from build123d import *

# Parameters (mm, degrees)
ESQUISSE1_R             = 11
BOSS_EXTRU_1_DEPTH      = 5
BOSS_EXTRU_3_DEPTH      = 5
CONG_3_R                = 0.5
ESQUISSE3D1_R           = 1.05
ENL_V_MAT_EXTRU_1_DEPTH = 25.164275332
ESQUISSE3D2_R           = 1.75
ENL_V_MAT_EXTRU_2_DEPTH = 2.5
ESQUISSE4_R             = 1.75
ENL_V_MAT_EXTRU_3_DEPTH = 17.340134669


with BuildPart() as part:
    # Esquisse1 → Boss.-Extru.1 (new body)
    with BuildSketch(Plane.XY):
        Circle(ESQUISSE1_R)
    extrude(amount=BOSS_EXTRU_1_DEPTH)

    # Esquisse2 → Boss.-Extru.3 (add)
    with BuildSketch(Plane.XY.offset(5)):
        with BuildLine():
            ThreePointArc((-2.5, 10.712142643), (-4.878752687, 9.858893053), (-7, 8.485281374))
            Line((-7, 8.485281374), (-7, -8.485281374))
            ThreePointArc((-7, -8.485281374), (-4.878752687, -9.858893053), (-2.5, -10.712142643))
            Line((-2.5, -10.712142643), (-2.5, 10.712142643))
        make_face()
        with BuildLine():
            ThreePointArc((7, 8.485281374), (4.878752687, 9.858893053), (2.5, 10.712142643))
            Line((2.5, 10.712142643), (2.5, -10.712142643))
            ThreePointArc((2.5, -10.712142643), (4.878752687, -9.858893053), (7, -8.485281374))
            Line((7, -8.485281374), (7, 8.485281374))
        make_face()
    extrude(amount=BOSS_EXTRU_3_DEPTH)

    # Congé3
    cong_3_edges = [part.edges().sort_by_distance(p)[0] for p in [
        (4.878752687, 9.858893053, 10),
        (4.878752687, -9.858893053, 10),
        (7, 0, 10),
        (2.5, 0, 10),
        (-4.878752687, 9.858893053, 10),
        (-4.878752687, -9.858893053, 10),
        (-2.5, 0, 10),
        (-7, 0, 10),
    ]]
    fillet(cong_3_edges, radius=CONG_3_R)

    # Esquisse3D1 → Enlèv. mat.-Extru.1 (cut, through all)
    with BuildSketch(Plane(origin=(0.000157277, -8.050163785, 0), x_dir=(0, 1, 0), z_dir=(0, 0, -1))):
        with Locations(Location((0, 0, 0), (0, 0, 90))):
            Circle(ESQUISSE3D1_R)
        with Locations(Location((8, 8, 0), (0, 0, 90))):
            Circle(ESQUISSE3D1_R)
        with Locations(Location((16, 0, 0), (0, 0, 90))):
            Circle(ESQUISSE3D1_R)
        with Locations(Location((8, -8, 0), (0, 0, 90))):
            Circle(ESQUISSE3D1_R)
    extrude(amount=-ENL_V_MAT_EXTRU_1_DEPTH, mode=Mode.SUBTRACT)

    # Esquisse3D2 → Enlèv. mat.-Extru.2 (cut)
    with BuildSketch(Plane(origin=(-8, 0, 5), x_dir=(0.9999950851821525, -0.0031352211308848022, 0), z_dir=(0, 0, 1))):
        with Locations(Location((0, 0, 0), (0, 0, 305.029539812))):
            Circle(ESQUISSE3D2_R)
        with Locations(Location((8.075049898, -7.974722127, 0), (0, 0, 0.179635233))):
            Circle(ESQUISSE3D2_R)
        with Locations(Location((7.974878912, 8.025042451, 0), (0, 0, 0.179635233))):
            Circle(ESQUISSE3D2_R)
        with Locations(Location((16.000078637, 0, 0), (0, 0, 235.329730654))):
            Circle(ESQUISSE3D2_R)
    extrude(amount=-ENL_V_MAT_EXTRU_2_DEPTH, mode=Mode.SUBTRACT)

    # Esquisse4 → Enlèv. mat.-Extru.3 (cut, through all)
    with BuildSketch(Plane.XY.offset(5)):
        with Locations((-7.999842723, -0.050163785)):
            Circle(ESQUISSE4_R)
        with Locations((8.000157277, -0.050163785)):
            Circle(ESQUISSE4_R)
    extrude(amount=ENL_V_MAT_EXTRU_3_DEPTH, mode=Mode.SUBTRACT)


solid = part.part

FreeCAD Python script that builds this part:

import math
import FreeCAD as App
import Part
import Sketcher

V = App.Vector


def edges_at(feature, points):
    """Names of the edges that pass closest to the given points."""
    edges = feature.Shape.Edges
    near = lambda p: min(range(len(edges)), key=lambda i: edges[i].distToShape(Part.Vertex(*p))[0])
    return sorted({f"Edge{near(p) + 1}" for p in points})

doc = App.newDocument("Part")
body = doc.addObject("PartDesign::Body", "Body")

sketch1 = doc.addObject("Sketcher::SketchObject", "Sketch")
body.addObject(sketch1)
sketch1.AttachmentSupport = (doc.XY_Plane, [""])
sketch1.MapMode = "FlatFace"
sketch1.addGeometry(Part.Circle(V(0, 0, 0), V(0, 0, 1), 11), False)
sketch1.addConstraint(Sketcher.Constraint("Coincident", 0, 3, -1, 1))
sketch1.addConstraint(Sketcher.Constraint("Diameter", 0, 22.0))
pad1 = doc.addObject("PartDesign::Pad", "Pad")
body.addObject(pad1)
pad1.Profile = sketch1
pad1.Length = 5

sketch2 = doc.addObject("Sketcher::SketchObject", "Sketch001")
body.addObject(sketch2)
sketch2.AttachmentSupport = (doc.XY_Plane, [""])
sketch2.MapMode = "FlatFace"
sketch2.AttachmentOffset = App.Placement(V(0, 0, 5), App.Rotation())
sketch2.addGeometry(Part.ArcOfCircle(Part.Circle(V(0, 0, 0), V(0, 0, 1), 11), math.radians(103), math.radians(130)), False)
sketch2.addGeometry(Part.LineSegment(V(-7, 8, 0), V(-7, -8, 0)), False)
sketch2.addGeometry(Part.ArcOfCircle(Part.Circle(V(0, 0, 0), V(0, 0, 1), 11), math.radians(-130), math.radians(-103)), False)
sketch2.addGeometry(Part.LineSegment(V(-2, -11, 0), V(-2, 11, 0)), False)
sketch2.addGeometry(Part.ArcOfCircle(Part.Circle(V(0, 0, 0), V(0, 0, 1), 11), math.radians(50), math.radians(77)), False)
sketch2.addGeometry(Part.LineSegment(V(2, 11, 0), V(2, -11, 0)), False)
sketch2.addGeometry(Part.ArcOfCircle(Part.Circle(V(0, 0, 0), V(0, 0, 1), 11), math.radians(-77), math.radians(-50)), False)
sketch2.addGeometry(Part.LineSegment(V(7, -8, 0), V(7, 8, 0)), False)
sketch2.addConstraint(Sketcher.Constraint("Coincident", 0, 2, 1, 1))
sketch2.addConstraint(Sketcher.Constraint("Coincident", 1, 2, 2, 1))
sketch2.addConstraint(Sketcher.Constraint("Coincident", 2, 2, 3, 1))
sketch2.addConstraint(Sketcher.Constraint("Coincident", 3, 2, 0, 1))
sketch2.addConstraint(Sketcher.Constraint("Coincident", 4, 2, 5, 1))
sketch2.addConstraint(Sketcher.Constraint("Coincident", 5, 2, 6, 1))
sketch2.addConstraint(Sketcher.Constraint("Coincident", 6, 2, 7, 1))
sketch2.addConstraint(Sketcher.Constraint("Coincident", 7, 2, 4, 1))
sketch2.addConstraint(Sketcher.Constraint("Vertical", 1))
sketch2.addConstraint(Sketcher.Constraint("Vertical", 3))
sketch2.addConstraint(Sketcher.Constraint("Vertical", 5))
sketch2.addConstraint(Sketcher.Constraint("Vertical", 7))
sketch2.addConstraint(Sketcher.Constraint("Coincident", 0, 3, -1, 1))
sketch2.addConstraint(Sketcher.Constraint("Coincident", 2, 3, -1, 1))
sketch2.addConstraint(Sketcher.Constraint("Coincident", 4, 3, -1, 1))
sketch2.addConstraint(Sketcher.Constraint("Coincident", 6, 3, -1, 1))
sketch2.addConstraint(Sketcher.Constraint("Equal", 0, 2))
sketch2.addConstraint(Sketcher.Constraint("Equal", 2, 4))
sketch2.addConstraint(Sketcher.Constraint("Equal", 4, 6))
sketch2.addConstraint(Sketcher.Constraint("Horizontal", 3, 2, 4, 2))
sketch2.addConstraint(Sketcher.Constraint("Horizontal", 1, 2, 6, 2))
sketch2.addConstraint(Sketcher.Constraint("Radius", 0, 11.0))
sketch2.addConstraint(Sketcher.Constraint("DistanceX", 0, 2, -1, 1, 7.0))
sketch2.addConstraint(Sketcher.Constraint("DistanceX", 3, 2, 4, 2, 5.0))
pad2 = doc.addObject("PartDesign::Pad", "Pad001")
body.addObject(pad2)
pad2.Profile = sketch2
pad2.Length = 5
doc.recompute()

fillet = doc.addObject("PartDesign::Fillet", "Fillet")
body.addObject(fillet)
fillet.Base = (pad2, edges_at(pad2, [
    (4.879, 9.859, 10),
    (4.879, -9.859, 10),
    (7, 0, 10),
    (2.5, 0, 10),
    (-4.879, 9.859, 10),
    (-4.879, -9.859, 10),
    (-2.5, 0, 10),
    (-7, 0, 10),
]))
fillet.Radius = 0.5

sketch3 = doc.addObject("Sketcher::SketchObject", "Sketch002")
body.addObject(sketch3)
sketch3.AttachmentSupport = (doc.XY_Plane, [""])
sketch3.MapMode = "FlatFace"
sketch3.addGeometry(Part.Circle(V(0, -8.1, 0), V(0, 0, 1), 1.1), False)
sketch3.addGeometry(Part.Circle(V(8, -0.1, 0), V(0, 0, 1), 1.1), False)
sketch3.addGeometry(Part.Circle(V(0, 7.9, 0), V(0, 0, 1), 1.1), False)
sketch3.addGeometry(Part.Circle(V(-8, -0.1, 0), V(0, 0, 1), 1.1), False)
sketch3.addConstraint(Sketcher.Constraint("Equal", 0, 1))
sketch3.addConstraint(Sketcher.Constraint("Equal", 1, 2))
sketch3.addConstraint(Sketcher.Constraint("Equal", 2, 3))
sketch3.addConstraint(Sketcher.Constraint("Horizontal", 1, 3, 3, 3))
sketch3.addConstraint(Sketcher.Constraint("Vertical", 0, 3, 2, 3))
sketch3.addConstraint(Sketcher.Constraint("Diameter", 0, 2.1))
sketch3.addConstraint(Sketcher.Constraint("DistanceX", 0, 3, 1, 3, 8.0))
sketch3.addConstraint(Sketcher.Constraint("DistanceY", 0, 3, 1, 3, 8.0))
sketch3.addConstraint(Sketcher.Constraint("DistanceY", 1, 3, 2, 3, 8.0))
sketch3.addConstraint(Sketcher.Constraint("DistanceX", 3, 3, 0, 3, 8.0))
sketch3.addConstraint(Sketcher.Constraint("DistanceX", -1, 1, 0, 3, 0.000157))
sketch3.addConstraint(Sketcher.Constraint("DistanceY", 0, 3, -1, 1, 8.050164))
pocket1 = doc.addObject("PartDesign::Pocket", "Pocket")
body.addObject(pocket1)
pocket1.Profile = sketch3
pocket1.Type = "ThroughAll"
pocket1.Reversed = True

sketch4 = doc.addObject("Sketcher::SketchObject", "Sketch003")
body.addObject(sketch4)
sketch4.AttachmentSupport = (doc.XY_Plane, [""])
sketch4.MapMode = "FlatFace"
sketch4.AttachmentOffset = App.Placement(V(0, 0, 5), App.Rotation())
sketch4.addGeometry(Part.Circle(V(-8, 0, 0), V(0, 0, 1), 1.8), False)
sketch4.addGeometry(Part.Circle(V(0.1, -8, 0), V(0, 0, 1), 1.8), False)
sketch4.addGeometry(Part.Circle(V(0, 8, 0), V(0, 0, 1), 1.8), False)
sketch4.addGeometry(Part.Circle(V(8, -0.1, 0), V(0, 0, 1), 1.8), False)
sketch4.addConstraint(Sketcher.Constraint("Equal", 0, 1))
sketch4.addConstraint(Sketcher.Constraint("Equal", 1, 2))
sketch4.addConstraint(Sketcher.Constraint("Equal", 2, 3))
sketch4.addConstraint(Sketcher.Constraint("PointOnObject", 0, 3, -1))
sketch4.addConstraint(Sketcher.Constraint("PointOnObject", 2, 3, -2))
sketch4.addConstraint(Sketcher.Constraint("Diameter", 0, 3.5))
sketch4.addConstraint(Sketcher.Constraint("DistanceX", 0, 3, -1, 1, 8.0))
sketch4.addConstraint(Sketcher.Constraint("DistanceY", 1, 3, -1, 1, 8.0))
sketch4.addConstraint(Sketcher.Constraint("DistanceY", -1, 1, 2, 3, 8.0))
sketch4.addConstraint(Sketcher.Constraint("DistanceX", -1, 1, 3, 3, 8.0))
sketch4.addConstraint(Sketcher.Constraint("DistanceX", -1, 1, 1, 3, 0.050008))
sketch4.addConstraint(Sketcher.Constraint("DistanceY", 3, 3, -1, 1, 0.050164))
pocket2 = doc.addObject("PartDesign::Pocket", "Pocket001")
body.addObject(pocket2)
pocket2.Profile = sketch4
pocket2.Length = 2.5

sketch5 = doc.addObject("Sketcher::SketchObject", "Sketch004")
body.addObject(sketch5)
sketch5.AttachmentSupport = (doc.XY_Plane, [""])
sketch5.MapMode = "FlatFace"
sketch5.AttachmentOffset = App.Placement(V(0, 0, 5), App.Rotation())
sketch5.addGeometry(Part.Circle(V(-8, -0.1, 0), V(0, 0, 1), 1.8), False)
sketch5.addGeometry(Part.Circle(V(8, -0.1, 0), V(0, 0, 1), 1.8), False)
sketch5.addConstraint(Sketcher.Constraint("Equal", 0, 1))
sketch5.addConstraint(Sketcher.Constraint("Horizontal", 0, 3, 1, 3))
sketch5.addConstraint(Sketcher.Constraint("Diameter", 0, 3.5))
sketch5.addConstraint(Sketcher.Constraint("DistanceX", 0, 3, 1, 3, 16.0))
sketch5.addConstraint(Sketcher.Constraint("DistanceX", 0, 3, -1, 1, 7.999843))
sketch5.addConstraint(Sketcher.Constraint("DistanceY", 0, 3, -1, 1, 0.050164))
pocket3 = doc.addObject("PartDesign::Pocket", "Pocket002")
body.addObject(pocket3)
pocket3.Profile = sketch5
pocket3.Type = "ThroughAll"
pocket3.Reversed = True

doc.recompute()
